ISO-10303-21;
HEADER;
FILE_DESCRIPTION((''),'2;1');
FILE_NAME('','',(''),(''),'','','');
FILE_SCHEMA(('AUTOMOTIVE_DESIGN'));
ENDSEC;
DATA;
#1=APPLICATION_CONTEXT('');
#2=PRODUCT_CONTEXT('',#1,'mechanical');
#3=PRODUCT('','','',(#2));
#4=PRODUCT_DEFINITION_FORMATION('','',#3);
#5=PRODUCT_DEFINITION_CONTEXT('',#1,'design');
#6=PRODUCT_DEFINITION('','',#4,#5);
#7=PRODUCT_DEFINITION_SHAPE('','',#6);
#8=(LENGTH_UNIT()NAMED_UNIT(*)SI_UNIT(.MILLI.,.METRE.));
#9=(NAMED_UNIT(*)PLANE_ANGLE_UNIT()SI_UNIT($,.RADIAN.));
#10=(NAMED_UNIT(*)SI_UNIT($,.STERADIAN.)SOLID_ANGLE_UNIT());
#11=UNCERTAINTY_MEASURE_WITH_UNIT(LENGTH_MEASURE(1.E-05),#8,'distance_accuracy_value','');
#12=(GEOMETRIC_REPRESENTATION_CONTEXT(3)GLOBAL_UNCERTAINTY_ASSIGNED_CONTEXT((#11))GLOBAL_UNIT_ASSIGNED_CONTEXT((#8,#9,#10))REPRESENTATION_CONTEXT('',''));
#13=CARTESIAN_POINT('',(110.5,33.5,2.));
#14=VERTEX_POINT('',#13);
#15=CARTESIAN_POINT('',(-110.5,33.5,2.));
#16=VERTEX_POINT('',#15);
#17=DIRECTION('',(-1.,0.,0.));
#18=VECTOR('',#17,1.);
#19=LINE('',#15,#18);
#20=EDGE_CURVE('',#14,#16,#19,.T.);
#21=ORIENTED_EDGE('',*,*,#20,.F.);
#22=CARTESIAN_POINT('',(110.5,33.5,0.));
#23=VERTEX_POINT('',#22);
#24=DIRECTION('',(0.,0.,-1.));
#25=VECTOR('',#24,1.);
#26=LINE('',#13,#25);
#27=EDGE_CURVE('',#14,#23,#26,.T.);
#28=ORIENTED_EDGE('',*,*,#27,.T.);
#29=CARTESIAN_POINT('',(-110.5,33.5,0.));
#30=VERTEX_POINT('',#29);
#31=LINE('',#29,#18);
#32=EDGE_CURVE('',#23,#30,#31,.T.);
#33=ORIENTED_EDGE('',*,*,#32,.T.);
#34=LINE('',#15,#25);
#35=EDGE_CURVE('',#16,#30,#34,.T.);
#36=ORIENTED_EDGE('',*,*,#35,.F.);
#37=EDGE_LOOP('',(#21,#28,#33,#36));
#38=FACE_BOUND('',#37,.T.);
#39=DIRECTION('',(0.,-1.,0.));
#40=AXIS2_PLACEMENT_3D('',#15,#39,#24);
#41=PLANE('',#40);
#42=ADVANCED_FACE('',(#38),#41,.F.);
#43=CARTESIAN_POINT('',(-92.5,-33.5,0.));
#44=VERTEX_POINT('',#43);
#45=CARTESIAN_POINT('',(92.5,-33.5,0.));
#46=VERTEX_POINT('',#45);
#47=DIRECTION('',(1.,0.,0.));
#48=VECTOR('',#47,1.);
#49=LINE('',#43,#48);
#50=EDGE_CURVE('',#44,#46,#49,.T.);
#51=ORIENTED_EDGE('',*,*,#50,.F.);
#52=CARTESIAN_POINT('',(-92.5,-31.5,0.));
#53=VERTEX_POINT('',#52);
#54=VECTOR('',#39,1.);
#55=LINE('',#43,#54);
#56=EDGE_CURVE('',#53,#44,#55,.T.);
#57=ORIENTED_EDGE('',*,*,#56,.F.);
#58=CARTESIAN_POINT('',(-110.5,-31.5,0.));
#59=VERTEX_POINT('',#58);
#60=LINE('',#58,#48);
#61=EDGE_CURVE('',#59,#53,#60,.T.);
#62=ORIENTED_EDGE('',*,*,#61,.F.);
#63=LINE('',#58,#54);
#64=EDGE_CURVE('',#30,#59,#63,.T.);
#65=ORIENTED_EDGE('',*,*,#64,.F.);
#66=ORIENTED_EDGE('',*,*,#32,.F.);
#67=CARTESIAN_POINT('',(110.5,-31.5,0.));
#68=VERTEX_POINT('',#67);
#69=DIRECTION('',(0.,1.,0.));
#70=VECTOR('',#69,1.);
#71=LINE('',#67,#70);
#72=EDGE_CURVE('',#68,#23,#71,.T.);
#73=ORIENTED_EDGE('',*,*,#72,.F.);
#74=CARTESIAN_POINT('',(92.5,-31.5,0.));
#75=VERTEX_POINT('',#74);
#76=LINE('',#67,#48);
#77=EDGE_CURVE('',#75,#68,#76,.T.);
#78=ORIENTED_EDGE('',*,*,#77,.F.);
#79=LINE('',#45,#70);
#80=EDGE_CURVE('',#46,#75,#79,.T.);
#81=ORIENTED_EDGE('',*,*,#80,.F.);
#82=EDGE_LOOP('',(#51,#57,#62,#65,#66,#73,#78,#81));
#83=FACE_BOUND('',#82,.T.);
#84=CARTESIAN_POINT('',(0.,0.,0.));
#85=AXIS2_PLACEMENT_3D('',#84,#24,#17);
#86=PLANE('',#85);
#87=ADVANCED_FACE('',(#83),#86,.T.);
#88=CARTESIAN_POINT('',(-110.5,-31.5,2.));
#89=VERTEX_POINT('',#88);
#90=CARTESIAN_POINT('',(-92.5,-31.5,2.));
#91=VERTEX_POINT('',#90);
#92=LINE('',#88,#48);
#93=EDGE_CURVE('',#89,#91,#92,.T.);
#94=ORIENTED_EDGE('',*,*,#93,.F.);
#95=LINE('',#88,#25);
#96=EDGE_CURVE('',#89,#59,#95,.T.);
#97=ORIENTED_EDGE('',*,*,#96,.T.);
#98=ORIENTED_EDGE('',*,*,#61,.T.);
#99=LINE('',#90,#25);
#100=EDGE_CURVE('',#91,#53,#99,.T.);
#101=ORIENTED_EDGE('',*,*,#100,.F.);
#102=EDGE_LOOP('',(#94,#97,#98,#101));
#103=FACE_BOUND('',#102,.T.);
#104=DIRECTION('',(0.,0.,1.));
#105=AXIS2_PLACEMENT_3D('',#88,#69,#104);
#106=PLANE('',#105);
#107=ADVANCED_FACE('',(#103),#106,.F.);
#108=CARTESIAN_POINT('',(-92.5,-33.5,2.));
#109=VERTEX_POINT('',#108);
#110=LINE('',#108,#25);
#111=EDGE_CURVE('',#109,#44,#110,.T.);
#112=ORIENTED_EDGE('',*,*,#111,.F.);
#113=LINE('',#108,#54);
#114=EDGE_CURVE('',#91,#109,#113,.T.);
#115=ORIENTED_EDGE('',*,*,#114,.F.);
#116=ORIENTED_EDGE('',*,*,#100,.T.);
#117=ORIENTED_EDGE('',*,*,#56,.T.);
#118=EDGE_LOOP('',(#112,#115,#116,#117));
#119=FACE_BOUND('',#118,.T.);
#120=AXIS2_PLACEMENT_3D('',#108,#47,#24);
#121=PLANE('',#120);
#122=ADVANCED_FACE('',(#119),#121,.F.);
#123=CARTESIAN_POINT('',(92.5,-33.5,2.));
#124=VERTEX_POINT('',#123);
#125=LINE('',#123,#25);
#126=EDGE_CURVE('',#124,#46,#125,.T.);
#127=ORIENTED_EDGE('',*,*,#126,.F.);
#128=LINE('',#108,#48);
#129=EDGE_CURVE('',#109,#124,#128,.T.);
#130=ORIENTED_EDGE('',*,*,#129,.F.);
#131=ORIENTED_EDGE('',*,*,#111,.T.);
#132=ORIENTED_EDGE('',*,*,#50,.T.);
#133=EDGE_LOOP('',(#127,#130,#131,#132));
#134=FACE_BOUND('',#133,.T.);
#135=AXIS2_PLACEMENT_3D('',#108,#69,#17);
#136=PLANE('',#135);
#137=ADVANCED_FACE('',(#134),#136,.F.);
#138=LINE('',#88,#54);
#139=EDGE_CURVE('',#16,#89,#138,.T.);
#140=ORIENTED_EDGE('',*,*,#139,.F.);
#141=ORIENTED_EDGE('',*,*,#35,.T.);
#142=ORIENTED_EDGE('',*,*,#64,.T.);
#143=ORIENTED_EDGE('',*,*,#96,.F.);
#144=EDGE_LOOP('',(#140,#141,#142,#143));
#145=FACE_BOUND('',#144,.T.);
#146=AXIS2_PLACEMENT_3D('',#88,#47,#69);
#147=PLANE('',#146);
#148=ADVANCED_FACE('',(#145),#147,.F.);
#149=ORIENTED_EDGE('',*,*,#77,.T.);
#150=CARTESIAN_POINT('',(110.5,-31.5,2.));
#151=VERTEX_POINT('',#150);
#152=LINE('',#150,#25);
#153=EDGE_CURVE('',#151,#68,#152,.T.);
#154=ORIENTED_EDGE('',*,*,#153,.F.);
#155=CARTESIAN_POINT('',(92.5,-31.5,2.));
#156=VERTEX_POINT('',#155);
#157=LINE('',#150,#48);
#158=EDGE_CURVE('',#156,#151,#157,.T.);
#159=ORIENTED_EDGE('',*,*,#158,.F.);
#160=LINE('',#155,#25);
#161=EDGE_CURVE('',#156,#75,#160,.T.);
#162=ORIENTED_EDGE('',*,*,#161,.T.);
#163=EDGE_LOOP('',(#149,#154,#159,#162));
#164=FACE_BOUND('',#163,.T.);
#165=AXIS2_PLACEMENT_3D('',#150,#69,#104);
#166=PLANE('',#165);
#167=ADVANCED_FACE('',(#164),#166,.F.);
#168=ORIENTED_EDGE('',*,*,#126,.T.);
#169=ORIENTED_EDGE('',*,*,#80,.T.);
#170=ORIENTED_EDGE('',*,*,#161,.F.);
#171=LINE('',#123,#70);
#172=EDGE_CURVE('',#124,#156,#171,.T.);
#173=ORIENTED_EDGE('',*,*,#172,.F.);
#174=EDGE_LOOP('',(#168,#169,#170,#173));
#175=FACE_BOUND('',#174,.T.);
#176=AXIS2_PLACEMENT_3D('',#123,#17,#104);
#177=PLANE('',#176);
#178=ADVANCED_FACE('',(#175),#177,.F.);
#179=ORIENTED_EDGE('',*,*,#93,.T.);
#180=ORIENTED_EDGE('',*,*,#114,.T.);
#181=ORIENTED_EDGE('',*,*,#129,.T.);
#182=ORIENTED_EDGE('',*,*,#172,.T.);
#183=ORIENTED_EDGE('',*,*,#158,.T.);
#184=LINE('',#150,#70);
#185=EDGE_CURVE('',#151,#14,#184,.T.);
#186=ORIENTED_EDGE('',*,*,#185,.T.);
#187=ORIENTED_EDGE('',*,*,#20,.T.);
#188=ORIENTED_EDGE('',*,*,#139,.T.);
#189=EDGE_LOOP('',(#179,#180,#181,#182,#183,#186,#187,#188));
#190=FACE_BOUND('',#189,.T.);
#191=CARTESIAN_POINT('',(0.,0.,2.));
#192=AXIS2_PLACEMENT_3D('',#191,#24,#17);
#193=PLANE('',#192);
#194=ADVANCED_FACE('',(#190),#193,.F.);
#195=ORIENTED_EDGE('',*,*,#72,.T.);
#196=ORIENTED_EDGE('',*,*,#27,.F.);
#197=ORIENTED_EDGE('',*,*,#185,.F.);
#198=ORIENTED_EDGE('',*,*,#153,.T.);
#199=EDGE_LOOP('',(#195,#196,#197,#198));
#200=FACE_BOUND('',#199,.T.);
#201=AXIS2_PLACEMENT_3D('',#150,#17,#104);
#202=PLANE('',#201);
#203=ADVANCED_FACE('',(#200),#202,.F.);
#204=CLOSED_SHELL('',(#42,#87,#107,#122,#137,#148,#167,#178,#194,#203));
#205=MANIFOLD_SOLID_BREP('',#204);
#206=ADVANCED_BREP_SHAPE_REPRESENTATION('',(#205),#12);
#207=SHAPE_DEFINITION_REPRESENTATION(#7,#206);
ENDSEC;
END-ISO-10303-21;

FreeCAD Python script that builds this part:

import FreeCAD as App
import Part
import Sketcher

doc = App.newDocument("Part")
body = doc.addObject("PartDesign::Body", "Body")

sketch1 = body.newObject("Sketcher::SketchObject", "Sketch")
sketch1.AttachmentSupport = (doc.getObject("XY_Plane"), [""])
sketch1.MapMode = "FlatFace"
sketch1.addGeometry(Part.LineSegment(App.Vector(-92.5, -33.5, 0), App.Vector(92.5, -33.5, 0)), False)
sketch1.addGeometry(Part.LineSegment(App.Vector(92.5, -33.5, 0), App.Vector(92.5, -31.5, 0)), False)
sketch1.addGeometry(Part.LineSegment(App.Vector(92.5, -31.5, 0), App.Vector(110.5, -31.5, 0)), False)
sketch1.addGeometry(Part.LineSegment(App.Vector(110.5, -31.5, 0), App.Vector(110.5, 33.5, 0)), False)
sketch1.addGeometry(Part.LineSegment(App.Vector(110.5, 33.5, 0), App.Vector(-110.5, 33.5, 0)), False)
sketch1.addGeometry(Part.LineSegment(App.Vector(-110.5, 33.5, 0), App.Vector(-110.5, -31.5, 0)), False)
sketch1.addGeometry(Part.LineSegment(App.Vector(-110.5, -31.5, 0), App.Vector(-92.5, -31.5, 0)), False)
sketch1.addGeometry(Part.LineSegment(App.Vector(-92.5, -31.5, 0), App.Vector(-92.5, -33.5, 0)), False)
sketch1.addConstraint(Sketcher.Constraint("Coincident", 0, 2, 1, 1))
sketch1.addConstraint(Sketcher.Constraint("Coincident", 1, 2, 2, 1))
sketch1.addConstraint(Sketcher.Constraint("Coincident", 2, 2, 3, 1))
sketch1.addConstraint(Sketcher.Constraint("Coincident", 3, 2, 4, 1))
sketch1.addConstraint(Sketcher.Constraint("Coincident", 4, 2, 5, 1))
sketch1.addConstraint(Sketcher.Constraint("Coincident", 5, 2, 6, 1))
sketch1.addConstraint(Sketcher.Constraint("Coincident", 6, 2, 7, 1))
sketch1.addConstraint(Sketcher.Constraint("Coincident", 7, 2, 0, 1))
sketch1.addConstraint(Sketcher.Constraint("Horizontal", 0))
sketch1.addConstraint(Sketcher.Constraint("Vertical", 1))
sketch1.addConstraint(Sketcher.Constraint("Horizontal", 2))
sketch1.addConstraint(Sketcher.Constraint("Vertical", 3))
sketch1.addConstraint(Sketcher.Constraint("Horizontal", 4))
sketch1.addConstraint(Sketcher.Constraint("Vertical", 5))
sketch1.addConstraint(Sketcher.Constraint("Horizontal", 6))
sketch1.addConstraint(Sketcher.Constraint("Vertical", 7))
sketch1.addConstraint(Sketcher.Constraint("Symmetric", 2, 2, 5, 2, -2))
sketch1.addConstraint(Sketcher.Constraint("Equal", 2, 6))
sketch1.addConstraint(Sketcher.Constraint("DistanceX", 0, 1, 0, 2, 185.0))
sketch1.addConstraint(Sketcher.Constraint("DistanceX", 2, 1, 2, 2, 18.0))
sketch1.addConstraint(Sketcher.Constraint("DistanceY", 1, 1, 1, 2, 2.0))
sketch1.addConstraint(Sketcher.Constraint("DistanceY", 3, 1, 3, 2, 65.0))
sketch1.addConstraint(Sketcher.Constraint("DistanceY", 0, 2, -1, 1, 33.5))
pad1 = body.newObject("PartDesign::Pad", "Pad")
pad1.Profile = sketch1
pad1.Length = 2

doc.recompute()
